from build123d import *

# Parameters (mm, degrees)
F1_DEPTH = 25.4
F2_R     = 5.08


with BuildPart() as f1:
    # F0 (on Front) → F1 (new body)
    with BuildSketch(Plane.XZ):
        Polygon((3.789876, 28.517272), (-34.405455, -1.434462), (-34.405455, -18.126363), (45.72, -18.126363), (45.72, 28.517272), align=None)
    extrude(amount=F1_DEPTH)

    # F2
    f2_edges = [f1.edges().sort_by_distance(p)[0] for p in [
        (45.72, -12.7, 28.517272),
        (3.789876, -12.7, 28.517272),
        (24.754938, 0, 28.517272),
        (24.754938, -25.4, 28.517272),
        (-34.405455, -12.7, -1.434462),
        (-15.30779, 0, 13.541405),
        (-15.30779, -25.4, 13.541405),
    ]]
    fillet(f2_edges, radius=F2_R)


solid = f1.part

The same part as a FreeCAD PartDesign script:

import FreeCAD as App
import Part
import Sketcher
Q = App.Units.Quantity


def edges_at(feature, points):
    """Names of the edges that pass closest to the given points."""
    edges = feature.Shape.Edges
    near = lambda p: min(range(len(edges)), key=lambda i: edges[i].distToShape(Part.Vertex(*p))[0])
    return sorted({f"Edge{near(p) + 1}" for p in points})


def add_polygon(sketch, points):
    """Adds a closed chain of lines whose ends are joined by coincident constraints."""
    first, n = sketch.GeometryCount, len(points)
    for a, b in zip(points, points[1:] + points[:1]):
        sketch.addGeometry(Part.LineSegment(App.Vector(*a, 0), App.Vector(*b, 0)), False)
    for i in range(n):
        sketch.addConstraint(Sketcher.Constraint("Coincident", first + i, 2, first + (i + 1) % n, 1))

doc = App.newDocument("Part")
params = doc.addObject("Spreadsheet::Sheet", "Params")
for row, (alias, value) in enumerate([
    ("pad1_length", "1 in"),
    ("fillet_radius", "0.2 in"),
], start=1):
    params.set(f"A{row}", alias)
    params.set(f"B{row}", "=" + value)
    params.setAlias(f"B{row}", alias)

body = doc.addObject("PartDesign::Body", "Body")

# Sketch on XZ plane
sketch1 = body.newObject("Sketcher::SketchObject", "Sketch")
sketch1.AttachmentSupport = (doc.getObject("XZ_Plane"), [""])
sketch1.MapMode = "FlatFace"
add_polygon(sketch1, [(3.789876, 28.517272), (-34.405455, -1.434462), (-34.405455, -18.126363), (45.72, -18.126363), (45.72, 28.517272)])  # lines 0-4
sketch1.addConstraint(Sketcher.Constraint("Vertical", 1))
sketch1.addConstraint(Sketcher.Constraint("Horizontal", 2))
sketch1.addConstraint(Sketcher.Constraint("Vertical", 3))
sketch1.addConstraint(Sketcher.Constraint("Horizontal", 4))
sketch1.addConstraint(Sketcher.Constraint("DistanceX", -1, 1, 2, 2, Q("1.8 in")))
sketch1.addConstraint(Sketcher.Constraint("DistanceY", 1, 2, 1, 1, Q("16.691901 mm")))
sketch1.addConstraint(Sketcher.Constraint("Distance", 0, Q("48.538538 mm")))
sketch1.addConstraint(Sketcher.Constraint("DistanceX", 2, 1, 2, 2, Q("80.125455 mm")))
sketch1.addConstraint(Sketcher.Constraint("DistanceX", 4, 2, 4, 1, Q("41.930124 mm")))
sketch1.addConstraint(Sketcher.Constraint("DistanceY", 0, 2, -1, 1, Q("1.434462 mm")))
pad1 = body.newObject("PartDesign::Pad", "Pad")
pad1.Profile = sketch1
pad1.setExpression("Length", "Params.pad1_length")
doc.recompute()

fillet = body.newObject("PartDesign::Fillet", "Fillet")
fillet.Base = (pad1, edges_at(pad1, [
    (45.72, -12.7, 28.517),
    (3.79, -12.7, 28.517),
    (24.755, 0, 28.517),
    (24.755, -25.4, 28.517),
    (-34.405, -12.7, -1.434),
    (-15.308, 0, 13.541),
    (-15.308, -25.4, 13.541),
]))
fillet.setExpression("Radius", "Params.fillet_radius")

doc.recompute()
